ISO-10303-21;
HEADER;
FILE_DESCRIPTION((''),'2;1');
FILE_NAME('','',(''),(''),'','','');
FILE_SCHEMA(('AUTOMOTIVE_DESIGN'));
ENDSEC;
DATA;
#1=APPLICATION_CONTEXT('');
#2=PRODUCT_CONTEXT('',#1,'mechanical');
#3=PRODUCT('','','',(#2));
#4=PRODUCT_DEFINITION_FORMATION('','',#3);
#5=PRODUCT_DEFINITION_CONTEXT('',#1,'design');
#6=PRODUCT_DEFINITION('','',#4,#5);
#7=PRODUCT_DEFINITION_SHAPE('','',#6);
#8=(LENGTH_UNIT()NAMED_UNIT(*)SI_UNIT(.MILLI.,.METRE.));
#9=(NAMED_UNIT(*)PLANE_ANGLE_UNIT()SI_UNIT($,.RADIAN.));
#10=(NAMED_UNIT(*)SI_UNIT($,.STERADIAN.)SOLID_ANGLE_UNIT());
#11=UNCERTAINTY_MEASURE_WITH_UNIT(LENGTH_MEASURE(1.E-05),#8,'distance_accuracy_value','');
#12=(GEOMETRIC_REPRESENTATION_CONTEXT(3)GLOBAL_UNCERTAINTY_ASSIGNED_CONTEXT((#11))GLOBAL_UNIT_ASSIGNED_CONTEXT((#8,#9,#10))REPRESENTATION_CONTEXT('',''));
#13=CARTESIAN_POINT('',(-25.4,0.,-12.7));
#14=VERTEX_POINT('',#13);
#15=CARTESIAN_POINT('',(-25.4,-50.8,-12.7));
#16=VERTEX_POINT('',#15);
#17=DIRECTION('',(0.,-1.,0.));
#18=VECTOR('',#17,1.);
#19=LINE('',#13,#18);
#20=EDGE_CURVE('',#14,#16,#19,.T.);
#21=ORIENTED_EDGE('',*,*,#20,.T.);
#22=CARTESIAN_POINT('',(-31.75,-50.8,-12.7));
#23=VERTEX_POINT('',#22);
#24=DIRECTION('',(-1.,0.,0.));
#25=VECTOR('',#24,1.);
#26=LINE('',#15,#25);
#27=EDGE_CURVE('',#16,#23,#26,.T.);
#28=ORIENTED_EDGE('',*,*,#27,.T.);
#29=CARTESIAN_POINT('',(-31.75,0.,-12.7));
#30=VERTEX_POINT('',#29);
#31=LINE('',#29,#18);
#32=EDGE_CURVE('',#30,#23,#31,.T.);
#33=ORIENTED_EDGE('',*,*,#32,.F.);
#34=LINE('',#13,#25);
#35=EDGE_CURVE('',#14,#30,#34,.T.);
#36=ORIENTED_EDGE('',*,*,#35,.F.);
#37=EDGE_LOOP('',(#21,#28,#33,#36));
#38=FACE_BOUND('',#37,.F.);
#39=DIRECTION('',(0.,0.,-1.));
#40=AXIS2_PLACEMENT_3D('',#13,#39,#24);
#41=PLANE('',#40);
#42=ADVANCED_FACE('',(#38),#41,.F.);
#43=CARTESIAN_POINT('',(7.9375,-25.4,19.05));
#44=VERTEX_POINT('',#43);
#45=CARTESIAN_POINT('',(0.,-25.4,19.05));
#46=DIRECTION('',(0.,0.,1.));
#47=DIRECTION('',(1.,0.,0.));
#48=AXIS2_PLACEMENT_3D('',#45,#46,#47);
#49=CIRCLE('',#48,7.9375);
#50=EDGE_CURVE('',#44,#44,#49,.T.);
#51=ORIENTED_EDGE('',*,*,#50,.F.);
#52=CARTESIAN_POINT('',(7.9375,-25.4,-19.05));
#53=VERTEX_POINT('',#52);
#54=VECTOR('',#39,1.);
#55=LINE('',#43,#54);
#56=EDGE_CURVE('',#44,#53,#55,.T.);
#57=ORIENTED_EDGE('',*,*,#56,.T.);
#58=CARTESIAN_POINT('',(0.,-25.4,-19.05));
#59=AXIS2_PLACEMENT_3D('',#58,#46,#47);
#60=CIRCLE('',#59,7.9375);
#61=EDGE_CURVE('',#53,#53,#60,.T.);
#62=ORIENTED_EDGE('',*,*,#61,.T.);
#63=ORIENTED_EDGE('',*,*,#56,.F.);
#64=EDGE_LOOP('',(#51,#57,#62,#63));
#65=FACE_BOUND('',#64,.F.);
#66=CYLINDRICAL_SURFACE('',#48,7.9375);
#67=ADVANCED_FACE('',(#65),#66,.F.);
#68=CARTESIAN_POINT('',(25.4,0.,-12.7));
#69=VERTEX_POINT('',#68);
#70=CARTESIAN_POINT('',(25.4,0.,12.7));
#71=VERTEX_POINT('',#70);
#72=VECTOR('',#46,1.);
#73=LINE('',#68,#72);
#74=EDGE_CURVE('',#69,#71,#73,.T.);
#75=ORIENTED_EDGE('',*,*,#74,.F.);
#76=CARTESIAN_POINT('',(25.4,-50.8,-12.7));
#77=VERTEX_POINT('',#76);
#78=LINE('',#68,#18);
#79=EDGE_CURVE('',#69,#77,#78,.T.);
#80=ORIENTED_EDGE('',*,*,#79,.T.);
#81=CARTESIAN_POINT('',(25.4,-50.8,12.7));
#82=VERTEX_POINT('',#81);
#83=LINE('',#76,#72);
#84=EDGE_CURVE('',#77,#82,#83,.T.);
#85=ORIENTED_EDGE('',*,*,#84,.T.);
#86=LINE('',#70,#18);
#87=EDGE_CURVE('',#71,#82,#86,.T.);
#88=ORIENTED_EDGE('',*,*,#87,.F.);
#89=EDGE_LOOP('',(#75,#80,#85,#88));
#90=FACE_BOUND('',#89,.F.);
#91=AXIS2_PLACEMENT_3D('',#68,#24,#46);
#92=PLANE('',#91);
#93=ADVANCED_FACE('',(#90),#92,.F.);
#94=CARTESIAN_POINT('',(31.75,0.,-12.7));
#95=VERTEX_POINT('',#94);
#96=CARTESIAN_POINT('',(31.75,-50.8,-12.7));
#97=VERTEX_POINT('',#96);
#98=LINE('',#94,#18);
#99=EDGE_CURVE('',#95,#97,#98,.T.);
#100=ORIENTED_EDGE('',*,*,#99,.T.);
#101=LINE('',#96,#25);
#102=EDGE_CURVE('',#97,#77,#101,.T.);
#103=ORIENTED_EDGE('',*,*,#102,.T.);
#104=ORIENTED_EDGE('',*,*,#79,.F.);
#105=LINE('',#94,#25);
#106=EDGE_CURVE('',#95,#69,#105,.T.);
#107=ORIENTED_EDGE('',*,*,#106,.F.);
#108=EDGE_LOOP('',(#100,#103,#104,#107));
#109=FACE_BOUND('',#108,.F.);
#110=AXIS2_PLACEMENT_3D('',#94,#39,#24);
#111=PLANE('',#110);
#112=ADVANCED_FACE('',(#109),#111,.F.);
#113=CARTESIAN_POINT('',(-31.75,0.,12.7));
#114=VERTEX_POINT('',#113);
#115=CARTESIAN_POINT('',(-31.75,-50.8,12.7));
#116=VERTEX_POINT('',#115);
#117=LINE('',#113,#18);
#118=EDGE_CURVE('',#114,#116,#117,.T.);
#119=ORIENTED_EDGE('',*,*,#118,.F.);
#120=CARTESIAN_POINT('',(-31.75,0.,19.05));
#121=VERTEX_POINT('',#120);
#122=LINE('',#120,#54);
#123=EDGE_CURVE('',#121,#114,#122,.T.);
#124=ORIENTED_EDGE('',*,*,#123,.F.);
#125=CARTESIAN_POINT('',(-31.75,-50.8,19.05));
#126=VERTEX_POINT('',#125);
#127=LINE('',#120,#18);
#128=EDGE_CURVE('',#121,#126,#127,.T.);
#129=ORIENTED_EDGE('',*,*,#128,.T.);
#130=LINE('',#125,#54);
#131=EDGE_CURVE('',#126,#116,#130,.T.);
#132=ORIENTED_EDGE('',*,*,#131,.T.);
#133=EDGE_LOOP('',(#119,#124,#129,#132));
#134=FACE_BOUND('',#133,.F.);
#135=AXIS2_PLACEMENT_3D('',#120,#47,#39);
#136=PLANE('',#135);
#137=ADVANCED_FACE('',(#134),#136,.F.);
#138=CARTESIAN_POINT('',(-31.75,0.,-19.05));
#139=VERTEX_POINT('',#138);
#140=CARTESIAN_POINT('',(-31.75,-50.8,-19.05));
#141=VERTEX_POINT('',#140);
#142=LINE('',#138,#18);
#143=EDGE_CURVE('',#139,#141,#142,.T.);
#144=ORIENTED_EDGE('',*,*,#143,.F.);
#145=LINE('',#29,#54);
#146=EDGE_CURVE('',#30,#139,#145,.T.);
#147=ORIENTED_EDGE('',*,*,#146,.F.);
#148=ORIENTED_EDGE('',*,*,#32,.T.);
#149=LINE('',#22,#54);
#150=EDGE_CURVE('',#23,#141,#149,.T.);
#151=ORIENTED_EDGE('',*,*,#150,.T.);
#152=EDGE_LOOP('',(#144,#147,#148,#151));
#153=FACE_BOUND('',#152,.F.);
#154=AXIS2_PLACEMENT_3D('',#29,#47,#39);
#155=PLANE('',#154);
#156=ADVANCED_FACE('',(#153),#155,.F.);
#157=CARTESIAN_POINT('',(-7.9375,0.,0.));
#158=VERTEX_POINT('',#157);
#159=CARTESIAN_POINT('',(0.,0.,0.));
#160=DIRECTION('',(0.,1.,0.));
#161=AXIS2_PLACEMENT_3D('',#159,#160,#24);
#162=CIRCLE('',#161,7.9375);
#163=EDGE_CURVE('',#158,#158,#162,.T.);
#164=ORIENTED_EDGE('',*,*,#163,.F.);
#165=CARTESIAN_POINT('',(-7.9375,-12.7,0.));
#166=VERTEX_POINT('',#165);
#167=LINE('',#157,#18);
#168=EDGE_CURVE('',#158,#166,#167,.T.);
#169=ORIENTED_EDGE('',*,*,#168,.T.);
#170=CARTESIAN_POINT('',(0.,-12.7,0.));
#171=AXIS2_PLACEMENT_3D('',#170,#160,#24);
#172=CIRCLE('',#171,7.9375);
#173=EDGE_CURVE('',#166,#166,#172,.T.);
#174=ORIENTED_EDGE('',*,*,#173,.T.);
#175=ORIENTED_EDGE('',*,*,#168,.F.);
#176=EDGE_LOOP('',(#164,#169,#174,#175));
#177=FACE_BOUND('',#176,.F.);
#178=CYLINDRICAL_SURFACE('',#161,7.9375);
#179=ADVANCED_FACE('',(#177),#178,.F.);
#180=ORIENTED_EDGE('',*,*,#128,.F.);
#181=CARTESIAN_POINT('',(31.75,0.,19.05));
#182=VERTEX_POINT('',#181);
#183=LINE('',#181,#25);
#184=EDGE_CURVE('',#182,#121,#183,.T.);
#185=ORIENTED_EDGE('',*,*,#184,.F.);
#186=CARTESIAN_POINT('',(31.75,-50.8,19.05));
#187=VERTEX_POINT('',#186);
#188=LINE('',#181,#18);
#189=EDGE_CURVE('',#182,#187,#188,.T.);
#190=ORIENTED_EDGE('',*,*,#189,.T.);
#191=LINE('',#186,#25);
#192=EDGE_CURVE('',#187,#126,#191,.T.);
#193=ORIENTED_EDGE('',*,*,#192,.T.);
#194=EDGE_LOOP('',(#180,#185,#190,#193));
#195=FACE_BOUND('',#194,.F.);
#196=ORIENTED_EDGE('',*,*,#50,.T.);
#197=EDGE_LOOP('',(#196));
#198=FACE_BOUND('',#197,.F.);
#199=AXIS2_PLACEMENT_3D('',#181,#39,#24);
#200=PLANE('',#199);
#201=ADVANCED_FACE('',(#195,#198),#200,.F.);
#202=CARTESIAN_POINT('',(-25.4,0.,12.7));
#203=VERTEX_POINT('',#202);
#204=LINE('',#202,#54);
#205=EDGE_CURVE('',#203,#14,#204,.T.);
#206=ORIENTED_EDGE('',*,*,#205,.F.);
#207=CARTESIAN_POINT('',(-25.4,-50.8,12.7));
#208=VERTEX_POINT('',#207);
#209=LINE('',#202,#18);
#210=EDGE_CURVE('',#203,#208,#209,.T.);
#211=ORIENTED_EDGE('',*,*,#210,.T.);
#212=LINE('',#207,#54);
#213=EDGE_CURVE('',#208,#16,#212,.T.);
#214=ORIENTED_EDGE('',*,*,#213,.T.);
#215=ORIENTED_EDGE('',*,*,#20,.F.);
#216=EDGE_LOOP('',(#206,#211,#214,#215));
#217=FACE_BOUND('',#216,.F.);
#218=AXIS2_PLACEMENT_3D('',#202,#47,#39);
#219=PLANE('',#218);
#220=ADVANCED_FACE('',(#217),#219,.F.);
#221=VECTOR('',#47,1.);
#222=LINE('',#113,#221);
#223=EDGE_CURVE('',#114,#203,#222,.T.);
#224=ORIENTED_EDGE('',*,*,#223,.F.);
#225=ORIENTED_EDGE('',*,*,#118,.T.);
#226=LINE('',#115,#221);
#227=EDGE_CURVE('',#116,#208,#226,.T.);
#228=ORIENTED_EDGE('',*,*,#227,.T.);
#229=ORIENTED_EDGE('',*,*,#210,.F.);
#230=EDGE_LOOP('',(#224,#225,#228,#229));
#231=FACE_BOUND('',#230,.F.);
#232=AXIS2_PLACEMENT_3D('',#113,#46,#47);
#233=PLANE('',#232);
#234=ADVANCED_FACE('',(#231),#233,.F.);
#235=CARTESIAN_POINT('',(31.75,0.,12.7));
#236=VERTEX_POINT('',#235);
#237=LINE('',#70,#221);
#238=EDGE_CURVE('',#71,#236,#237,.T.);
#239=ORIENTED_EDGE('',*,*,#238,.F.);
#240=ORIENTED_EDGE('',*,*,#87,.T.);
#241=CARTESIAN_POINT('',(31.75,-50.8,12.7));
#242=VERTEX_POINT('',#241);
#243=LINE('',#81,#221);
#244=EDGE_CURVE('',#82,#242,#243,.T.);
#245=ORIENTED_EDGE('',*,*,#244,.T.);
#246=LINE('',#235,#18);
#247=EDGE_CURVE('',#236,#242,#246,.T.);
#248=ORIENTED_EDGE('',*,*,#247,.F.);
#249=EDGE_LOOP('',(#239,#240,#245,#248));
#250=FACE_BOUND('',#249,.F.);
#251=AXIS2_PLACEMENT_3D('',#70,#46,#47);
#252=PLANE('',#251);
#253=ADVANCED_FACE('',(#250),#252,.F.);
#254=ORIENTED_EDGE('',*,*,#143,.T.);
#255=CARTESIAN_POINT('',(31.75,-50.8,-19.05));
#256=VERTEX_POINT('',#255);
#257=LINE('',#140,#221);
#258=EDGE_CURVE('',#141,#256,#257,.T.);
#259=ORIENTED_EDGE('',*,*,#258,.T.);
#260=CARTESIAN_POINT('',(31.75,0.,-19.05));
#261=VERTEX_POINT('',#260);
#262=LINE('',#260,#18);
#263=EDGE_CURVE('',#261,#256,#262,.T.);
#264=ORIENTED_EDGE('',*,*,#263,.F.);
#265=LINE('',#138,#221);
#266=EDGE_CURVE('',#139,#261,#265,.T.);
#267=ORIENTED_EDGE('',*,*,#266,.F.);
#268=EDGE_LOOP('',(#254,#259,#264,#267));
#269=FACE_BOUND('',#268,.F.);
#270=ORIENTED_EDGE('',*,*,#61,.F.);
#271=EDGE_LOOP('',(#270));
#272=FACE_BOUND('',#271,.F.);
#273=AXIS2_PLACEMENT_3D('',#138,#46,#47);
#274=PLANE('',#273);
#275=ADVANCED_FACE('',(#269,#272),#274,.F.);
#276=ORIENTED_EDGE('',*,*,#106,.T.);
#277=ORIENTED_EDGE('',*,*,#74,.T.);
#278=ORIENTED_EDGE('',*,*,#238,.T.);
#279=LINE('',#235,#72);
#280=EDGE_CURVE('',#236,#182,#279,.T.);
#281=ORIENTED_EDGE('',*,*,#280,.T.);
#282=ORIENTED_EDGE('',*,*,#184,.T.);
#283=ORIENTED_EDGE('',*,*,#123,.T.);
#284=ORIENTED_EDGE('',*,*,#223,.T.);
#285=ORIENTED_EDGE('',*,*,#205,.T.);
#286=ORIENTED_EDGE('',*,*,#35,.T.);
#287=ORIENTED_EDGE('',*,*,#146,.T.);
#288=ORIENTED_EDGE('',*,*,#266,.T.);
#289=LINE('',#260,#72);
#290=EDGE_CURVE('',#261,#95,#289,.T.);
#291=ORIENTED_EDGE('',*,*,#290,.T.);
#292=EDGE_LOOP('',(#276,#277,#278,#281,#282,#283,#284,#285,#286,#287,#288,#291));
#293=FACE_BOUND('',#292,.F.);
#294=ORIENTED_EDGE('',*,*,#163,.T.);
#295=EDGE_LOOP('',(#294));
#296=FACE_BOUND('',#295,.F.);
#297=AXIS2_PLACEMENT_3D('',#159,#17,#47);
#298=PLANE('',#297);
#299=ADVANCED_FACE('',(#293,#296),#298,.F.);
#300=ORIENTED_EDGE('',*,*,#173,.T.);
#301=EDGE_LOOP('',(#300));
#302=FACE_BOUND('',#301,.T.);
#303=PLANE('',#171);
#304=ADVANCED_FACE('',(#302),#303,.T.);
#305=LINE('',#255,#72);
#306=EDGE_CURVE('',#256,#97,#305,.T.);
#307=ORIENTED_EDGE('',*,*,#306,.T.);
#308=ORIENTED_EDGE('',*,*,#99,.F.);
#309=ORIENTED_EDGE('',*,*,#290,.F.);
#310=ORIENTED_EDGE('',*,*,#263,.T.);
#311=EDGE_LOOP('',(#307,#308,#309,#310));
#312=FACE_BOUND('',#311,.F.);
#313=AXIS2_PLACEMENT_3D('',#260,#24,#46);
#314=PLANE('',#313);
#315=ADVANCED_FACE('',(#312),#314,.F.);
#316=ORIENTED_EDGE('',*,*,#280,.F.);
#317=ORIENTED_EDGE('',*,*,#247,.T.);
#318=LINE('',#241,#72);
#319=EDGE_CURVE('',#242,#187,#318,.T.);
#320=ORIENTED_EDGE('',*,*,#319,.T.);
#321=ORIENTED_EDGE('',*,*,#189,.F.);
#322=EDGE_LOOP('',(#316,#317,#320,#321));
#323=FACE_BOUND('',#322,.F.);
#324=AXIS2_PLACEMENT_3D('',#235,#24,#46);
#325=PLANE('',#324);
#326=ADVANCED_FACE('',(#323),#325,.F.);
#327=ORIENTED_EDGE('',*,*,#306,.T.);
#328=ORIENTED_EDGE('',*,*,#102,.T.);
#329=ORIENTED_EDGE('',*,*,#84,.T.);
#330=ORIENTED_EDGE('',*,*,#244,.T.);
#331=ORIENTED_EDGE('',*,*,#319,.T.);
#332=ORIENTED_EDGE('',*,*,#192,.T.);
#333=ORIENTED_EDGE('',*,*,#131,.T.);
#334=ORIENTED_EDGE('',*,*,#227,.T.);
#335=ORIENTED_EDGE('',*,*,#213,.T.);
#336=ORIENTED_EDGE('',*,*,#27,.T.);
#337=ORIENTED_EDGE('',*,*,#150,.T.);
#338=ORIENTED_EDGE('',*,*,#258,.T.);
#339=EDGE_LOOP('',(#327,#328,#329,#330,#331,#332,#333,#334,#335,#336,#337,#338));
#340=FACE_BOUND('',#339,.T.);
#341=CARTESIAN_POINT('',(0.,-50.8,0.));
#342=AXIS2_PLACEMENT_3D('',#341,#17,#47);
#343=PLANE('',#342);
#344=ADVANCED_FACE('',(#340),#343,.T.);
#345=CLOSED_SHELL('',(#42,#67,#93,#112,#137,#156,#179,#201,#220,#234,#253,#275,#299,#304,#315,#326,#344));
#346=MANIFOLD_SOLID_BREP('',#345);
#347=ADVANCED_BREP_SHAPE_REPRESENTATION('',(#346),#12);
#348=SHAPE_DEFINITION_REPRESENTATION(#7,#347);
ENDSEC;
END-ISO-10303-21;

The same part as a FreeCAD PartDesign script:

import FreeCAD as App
import Part
import Sketcher
from FreeCAD import Vector
Q = App.Units.Quantity

doc = App.newDocument("Part")
body = doc.addObject("PartDesign::Body", "Body")

# Sketch on XZ plane
sketch1 = body.newObject("Sketcher::SketchObject", "Sketch")
sketch1.AttachmentSupport = (doc.getObject("XZ_Plane"), [""])
sketch1.MapMode = "FlatFace"
sketch1.addGeometry(Part.LineSegment(Vector(-31.75, -19.05, 0), Vector(31.75, -19.05, 0)), False)
sketch1.addGeometry(Part.LineSegment(Vector(31.75, -19.05, 0), Vector(31.75, -12.7, 0)), False)
sketch1.addGeometry(Part.LineSegment(Vector(31.75, -12.7, 0), Vector(25.4, -12.7, 0)), False)
sketch1.addGeometry(Part.LineSegment(Vector(25.4, -12.7, 0), Vector(25.4, 12.7, 0)), False)
sketch1.addGeometry(Part.LineSegment(Vector(25.4, 12.7, 0), Vector(31.75, 12.7, 0)), False)
sketch1.addGeometry(Part.LineSegment(Vector(31.75, 12.7, 0), Vector(31.75, 19.05, 0)), False)
sketch1.addGeometry(Part.LineSegment(Vector(31.75, 19.05, 0), Vector(-31.75, 19.05, 0)), False)
sketch1.addGeometry(Part.LineSegment(Vector(-31.75, 19.05, 0), Vector(-31.75, 12.7, 0)), False)
sketch1.addGeometry(Part.LineSegment(Vector(-31.75, 12.7, 0), Vector(-25.4, 12.7, 0)), False)
sketch1.addGeometry(Part.LineSegment(Vector(-25.4, 12.7, 0), Vector(-25.4, -12.7, 0)), False)
sketch1.addGeometry(Part.LineSegment(Vector(-25.4, -12.7, 0), Vector(-31.75, -12.7, 0)), False)
sketch1.addGeometry(Part.LineSegment(Vector(-31.75, -12.7, 0), Vector(-31.75, -19.05, 0)), False)
sketch1.addConstraint(Sketcher.Constraint("Coincident", 0, 2, 1, 1))
sketch1.addConstraint(Sketcher.Constraint("Coincident", 1, 2, 2, 1))
sketch1.addConstraint(Sketcher.Constraint("Coincident", 2, 2, 3, 1))
sketch1.addConstraint(Sketcher.Constraint("Coincident", 3, 2, 4, 1))
sketch1.addConstraint(Sketcher.Constraint("Coincident", 4, 2, 5, 1))
sketch1.addConstraint(Sketcher.Constraint("Coincident", 5, 2, 6, 1))
sketch1.addConstraint(Sketcher.Constraint("Coincident", 6, 2, 7, 1))
sketch1.addConstraint(Sketcher.Constraint("Coincident", 7, 2, 8, 1))
sketch1.addConstraint(Sketcher.Constraint("Coincident", 8, 2, 9, 1))
sketch1.addConstraint(Sketcher.Constraint("Coincident", 9, 2, 10, 1))
sketch1.addConstraint(Sketcher.Constraint("Coincident", 10, 2, 11, 1))
sketch1.addConstraint(Sketcher.Constraint("Coincident", 11, 2, 0, 1))
sketch1.addConstraint(Sketcher.Constraint("Horizontal", 0))
sketch1.addConstraint(Sketcher.Constraint("Vertical", 1))
sketch1.addConstraint(Sketcher.Constraint("Horizontal", 2))
sketch1.addConstraint(Sketcher.Constraint("Vertical", 3))
sketch1.addConstraint(Sketcher.Constraint("Horizontal", 4))
sketch1.addConstraint(Sketcher.Constraint("Vertical", 5))
sketch1.addConstraint(Sketcher.Constraint("Horizontal", 6))
sketch1.addConstraint(Sketcher.Constraint("Vertical", 7))
sketch1.addConstraint(Sketcher.Constraint("Horizontal", 8))
sketch1.addConstraint(Sketcher.Constraint("Vertical", 9))
sketch1.addConstraint(Sketcher.Constraint("Horizontal", 10))
sketch1.addConstraint(Sketcher.Constraint("Vertical", 11))
sketch1.addConstraint(Sketcher.Constraint("Symmetric", 0, 2, 6, 2, -1, 1))
sketch1.addConstraint(Sketcher.Constraint("Symmetric", 2, 2, 8, 2, -1, 1))
sketch1.addConstraint(Sketcher.Constraint("Symmetric", 4, 2, 10, 2, -1, 1))
sketch1.addConstraint(Sketcher.Constraint("Symmetric", 4, 2, 7, 2, -2))
sketch1.addConstraint(Sketcher.Constraint("Equal", 10, 1))
sketch1.addConstraint(Sketcher.Constraint("DistanceY", 3, 1, 3, 2, Q("1 in")))
sketch1.addConstraint(Sketcher.Constraint("DistanceX", 0, 1, 0, 2, Q("2.5 in")))
sketch1.addConstraint(Sketcher.Constraint("DistanceX", -1, 1, 2, 2, Q("1 in")))
pad1 = body.newObject("PartDesign::Pad", "Pad")
pad1.Profile = sketch1
pad1.Length = Q("2 in")

# Sketch on XY plane
sketch2 = body.newObject("Sketcher::SketchObject", "Sketch001")
sketch2.AttachmentSupport = (doc.getObject("XY_Plane"), [""])
sketch2.MapMode = "FlatFace"
sketch2.AttachmentOffset = App.Placement(Vector(0, 0, 0.75 * 25.4), App.Rotation())
sketch2.addGeometry(Part.Circle(Vector(0, -25.4, 0), Vector(0, 0, 1), 7.9375), False)
sketch2.addConstraint(Sketcher.Constraint("PointOnObject", 0, 3, -2))
sketch2.addConstraint(Sketcher.Constraint("Diameter", 0, Q("0.625 in")))
sketch2.addConstraint(Sketcher.Constraint("DistanceY", 0, 3, -1, 1, Q("1 in")))
pocket1 = body.newObject("PartDesign::Pocket", "Pocket")
pocket1.Profile = sketch2
pocket1.Type = "ThroughAll"

# Sketch on XZ plane
sketch3 = body.newObject("Sketcher::SketchObject", "Sketch002")
sketch3.AttachmentSupport = (doc.getObject("XZ_Plane"), [""])
sketch3.MapMode = "FlatFace"
sketch3.addGeometry(Part.Circle(Vector(0, 0, 0), Vector(0, 0, 1), 7.9375), False)
sketch3.addConstraint(Sketcher.Constraint("Coincident", 0, 3, -1, 1))
sketch3.addConstraint(Sketcher.Constraint("Diameter", 0, Q("0.625 in")))
pocket2 = body.newObject("PartDesign::Pocket", "Pocket001")
pocket2.Profile = sketch3
pocket2.Length = Q("0.5 in")
pocket2.Reversed = True

doc.recompute()
